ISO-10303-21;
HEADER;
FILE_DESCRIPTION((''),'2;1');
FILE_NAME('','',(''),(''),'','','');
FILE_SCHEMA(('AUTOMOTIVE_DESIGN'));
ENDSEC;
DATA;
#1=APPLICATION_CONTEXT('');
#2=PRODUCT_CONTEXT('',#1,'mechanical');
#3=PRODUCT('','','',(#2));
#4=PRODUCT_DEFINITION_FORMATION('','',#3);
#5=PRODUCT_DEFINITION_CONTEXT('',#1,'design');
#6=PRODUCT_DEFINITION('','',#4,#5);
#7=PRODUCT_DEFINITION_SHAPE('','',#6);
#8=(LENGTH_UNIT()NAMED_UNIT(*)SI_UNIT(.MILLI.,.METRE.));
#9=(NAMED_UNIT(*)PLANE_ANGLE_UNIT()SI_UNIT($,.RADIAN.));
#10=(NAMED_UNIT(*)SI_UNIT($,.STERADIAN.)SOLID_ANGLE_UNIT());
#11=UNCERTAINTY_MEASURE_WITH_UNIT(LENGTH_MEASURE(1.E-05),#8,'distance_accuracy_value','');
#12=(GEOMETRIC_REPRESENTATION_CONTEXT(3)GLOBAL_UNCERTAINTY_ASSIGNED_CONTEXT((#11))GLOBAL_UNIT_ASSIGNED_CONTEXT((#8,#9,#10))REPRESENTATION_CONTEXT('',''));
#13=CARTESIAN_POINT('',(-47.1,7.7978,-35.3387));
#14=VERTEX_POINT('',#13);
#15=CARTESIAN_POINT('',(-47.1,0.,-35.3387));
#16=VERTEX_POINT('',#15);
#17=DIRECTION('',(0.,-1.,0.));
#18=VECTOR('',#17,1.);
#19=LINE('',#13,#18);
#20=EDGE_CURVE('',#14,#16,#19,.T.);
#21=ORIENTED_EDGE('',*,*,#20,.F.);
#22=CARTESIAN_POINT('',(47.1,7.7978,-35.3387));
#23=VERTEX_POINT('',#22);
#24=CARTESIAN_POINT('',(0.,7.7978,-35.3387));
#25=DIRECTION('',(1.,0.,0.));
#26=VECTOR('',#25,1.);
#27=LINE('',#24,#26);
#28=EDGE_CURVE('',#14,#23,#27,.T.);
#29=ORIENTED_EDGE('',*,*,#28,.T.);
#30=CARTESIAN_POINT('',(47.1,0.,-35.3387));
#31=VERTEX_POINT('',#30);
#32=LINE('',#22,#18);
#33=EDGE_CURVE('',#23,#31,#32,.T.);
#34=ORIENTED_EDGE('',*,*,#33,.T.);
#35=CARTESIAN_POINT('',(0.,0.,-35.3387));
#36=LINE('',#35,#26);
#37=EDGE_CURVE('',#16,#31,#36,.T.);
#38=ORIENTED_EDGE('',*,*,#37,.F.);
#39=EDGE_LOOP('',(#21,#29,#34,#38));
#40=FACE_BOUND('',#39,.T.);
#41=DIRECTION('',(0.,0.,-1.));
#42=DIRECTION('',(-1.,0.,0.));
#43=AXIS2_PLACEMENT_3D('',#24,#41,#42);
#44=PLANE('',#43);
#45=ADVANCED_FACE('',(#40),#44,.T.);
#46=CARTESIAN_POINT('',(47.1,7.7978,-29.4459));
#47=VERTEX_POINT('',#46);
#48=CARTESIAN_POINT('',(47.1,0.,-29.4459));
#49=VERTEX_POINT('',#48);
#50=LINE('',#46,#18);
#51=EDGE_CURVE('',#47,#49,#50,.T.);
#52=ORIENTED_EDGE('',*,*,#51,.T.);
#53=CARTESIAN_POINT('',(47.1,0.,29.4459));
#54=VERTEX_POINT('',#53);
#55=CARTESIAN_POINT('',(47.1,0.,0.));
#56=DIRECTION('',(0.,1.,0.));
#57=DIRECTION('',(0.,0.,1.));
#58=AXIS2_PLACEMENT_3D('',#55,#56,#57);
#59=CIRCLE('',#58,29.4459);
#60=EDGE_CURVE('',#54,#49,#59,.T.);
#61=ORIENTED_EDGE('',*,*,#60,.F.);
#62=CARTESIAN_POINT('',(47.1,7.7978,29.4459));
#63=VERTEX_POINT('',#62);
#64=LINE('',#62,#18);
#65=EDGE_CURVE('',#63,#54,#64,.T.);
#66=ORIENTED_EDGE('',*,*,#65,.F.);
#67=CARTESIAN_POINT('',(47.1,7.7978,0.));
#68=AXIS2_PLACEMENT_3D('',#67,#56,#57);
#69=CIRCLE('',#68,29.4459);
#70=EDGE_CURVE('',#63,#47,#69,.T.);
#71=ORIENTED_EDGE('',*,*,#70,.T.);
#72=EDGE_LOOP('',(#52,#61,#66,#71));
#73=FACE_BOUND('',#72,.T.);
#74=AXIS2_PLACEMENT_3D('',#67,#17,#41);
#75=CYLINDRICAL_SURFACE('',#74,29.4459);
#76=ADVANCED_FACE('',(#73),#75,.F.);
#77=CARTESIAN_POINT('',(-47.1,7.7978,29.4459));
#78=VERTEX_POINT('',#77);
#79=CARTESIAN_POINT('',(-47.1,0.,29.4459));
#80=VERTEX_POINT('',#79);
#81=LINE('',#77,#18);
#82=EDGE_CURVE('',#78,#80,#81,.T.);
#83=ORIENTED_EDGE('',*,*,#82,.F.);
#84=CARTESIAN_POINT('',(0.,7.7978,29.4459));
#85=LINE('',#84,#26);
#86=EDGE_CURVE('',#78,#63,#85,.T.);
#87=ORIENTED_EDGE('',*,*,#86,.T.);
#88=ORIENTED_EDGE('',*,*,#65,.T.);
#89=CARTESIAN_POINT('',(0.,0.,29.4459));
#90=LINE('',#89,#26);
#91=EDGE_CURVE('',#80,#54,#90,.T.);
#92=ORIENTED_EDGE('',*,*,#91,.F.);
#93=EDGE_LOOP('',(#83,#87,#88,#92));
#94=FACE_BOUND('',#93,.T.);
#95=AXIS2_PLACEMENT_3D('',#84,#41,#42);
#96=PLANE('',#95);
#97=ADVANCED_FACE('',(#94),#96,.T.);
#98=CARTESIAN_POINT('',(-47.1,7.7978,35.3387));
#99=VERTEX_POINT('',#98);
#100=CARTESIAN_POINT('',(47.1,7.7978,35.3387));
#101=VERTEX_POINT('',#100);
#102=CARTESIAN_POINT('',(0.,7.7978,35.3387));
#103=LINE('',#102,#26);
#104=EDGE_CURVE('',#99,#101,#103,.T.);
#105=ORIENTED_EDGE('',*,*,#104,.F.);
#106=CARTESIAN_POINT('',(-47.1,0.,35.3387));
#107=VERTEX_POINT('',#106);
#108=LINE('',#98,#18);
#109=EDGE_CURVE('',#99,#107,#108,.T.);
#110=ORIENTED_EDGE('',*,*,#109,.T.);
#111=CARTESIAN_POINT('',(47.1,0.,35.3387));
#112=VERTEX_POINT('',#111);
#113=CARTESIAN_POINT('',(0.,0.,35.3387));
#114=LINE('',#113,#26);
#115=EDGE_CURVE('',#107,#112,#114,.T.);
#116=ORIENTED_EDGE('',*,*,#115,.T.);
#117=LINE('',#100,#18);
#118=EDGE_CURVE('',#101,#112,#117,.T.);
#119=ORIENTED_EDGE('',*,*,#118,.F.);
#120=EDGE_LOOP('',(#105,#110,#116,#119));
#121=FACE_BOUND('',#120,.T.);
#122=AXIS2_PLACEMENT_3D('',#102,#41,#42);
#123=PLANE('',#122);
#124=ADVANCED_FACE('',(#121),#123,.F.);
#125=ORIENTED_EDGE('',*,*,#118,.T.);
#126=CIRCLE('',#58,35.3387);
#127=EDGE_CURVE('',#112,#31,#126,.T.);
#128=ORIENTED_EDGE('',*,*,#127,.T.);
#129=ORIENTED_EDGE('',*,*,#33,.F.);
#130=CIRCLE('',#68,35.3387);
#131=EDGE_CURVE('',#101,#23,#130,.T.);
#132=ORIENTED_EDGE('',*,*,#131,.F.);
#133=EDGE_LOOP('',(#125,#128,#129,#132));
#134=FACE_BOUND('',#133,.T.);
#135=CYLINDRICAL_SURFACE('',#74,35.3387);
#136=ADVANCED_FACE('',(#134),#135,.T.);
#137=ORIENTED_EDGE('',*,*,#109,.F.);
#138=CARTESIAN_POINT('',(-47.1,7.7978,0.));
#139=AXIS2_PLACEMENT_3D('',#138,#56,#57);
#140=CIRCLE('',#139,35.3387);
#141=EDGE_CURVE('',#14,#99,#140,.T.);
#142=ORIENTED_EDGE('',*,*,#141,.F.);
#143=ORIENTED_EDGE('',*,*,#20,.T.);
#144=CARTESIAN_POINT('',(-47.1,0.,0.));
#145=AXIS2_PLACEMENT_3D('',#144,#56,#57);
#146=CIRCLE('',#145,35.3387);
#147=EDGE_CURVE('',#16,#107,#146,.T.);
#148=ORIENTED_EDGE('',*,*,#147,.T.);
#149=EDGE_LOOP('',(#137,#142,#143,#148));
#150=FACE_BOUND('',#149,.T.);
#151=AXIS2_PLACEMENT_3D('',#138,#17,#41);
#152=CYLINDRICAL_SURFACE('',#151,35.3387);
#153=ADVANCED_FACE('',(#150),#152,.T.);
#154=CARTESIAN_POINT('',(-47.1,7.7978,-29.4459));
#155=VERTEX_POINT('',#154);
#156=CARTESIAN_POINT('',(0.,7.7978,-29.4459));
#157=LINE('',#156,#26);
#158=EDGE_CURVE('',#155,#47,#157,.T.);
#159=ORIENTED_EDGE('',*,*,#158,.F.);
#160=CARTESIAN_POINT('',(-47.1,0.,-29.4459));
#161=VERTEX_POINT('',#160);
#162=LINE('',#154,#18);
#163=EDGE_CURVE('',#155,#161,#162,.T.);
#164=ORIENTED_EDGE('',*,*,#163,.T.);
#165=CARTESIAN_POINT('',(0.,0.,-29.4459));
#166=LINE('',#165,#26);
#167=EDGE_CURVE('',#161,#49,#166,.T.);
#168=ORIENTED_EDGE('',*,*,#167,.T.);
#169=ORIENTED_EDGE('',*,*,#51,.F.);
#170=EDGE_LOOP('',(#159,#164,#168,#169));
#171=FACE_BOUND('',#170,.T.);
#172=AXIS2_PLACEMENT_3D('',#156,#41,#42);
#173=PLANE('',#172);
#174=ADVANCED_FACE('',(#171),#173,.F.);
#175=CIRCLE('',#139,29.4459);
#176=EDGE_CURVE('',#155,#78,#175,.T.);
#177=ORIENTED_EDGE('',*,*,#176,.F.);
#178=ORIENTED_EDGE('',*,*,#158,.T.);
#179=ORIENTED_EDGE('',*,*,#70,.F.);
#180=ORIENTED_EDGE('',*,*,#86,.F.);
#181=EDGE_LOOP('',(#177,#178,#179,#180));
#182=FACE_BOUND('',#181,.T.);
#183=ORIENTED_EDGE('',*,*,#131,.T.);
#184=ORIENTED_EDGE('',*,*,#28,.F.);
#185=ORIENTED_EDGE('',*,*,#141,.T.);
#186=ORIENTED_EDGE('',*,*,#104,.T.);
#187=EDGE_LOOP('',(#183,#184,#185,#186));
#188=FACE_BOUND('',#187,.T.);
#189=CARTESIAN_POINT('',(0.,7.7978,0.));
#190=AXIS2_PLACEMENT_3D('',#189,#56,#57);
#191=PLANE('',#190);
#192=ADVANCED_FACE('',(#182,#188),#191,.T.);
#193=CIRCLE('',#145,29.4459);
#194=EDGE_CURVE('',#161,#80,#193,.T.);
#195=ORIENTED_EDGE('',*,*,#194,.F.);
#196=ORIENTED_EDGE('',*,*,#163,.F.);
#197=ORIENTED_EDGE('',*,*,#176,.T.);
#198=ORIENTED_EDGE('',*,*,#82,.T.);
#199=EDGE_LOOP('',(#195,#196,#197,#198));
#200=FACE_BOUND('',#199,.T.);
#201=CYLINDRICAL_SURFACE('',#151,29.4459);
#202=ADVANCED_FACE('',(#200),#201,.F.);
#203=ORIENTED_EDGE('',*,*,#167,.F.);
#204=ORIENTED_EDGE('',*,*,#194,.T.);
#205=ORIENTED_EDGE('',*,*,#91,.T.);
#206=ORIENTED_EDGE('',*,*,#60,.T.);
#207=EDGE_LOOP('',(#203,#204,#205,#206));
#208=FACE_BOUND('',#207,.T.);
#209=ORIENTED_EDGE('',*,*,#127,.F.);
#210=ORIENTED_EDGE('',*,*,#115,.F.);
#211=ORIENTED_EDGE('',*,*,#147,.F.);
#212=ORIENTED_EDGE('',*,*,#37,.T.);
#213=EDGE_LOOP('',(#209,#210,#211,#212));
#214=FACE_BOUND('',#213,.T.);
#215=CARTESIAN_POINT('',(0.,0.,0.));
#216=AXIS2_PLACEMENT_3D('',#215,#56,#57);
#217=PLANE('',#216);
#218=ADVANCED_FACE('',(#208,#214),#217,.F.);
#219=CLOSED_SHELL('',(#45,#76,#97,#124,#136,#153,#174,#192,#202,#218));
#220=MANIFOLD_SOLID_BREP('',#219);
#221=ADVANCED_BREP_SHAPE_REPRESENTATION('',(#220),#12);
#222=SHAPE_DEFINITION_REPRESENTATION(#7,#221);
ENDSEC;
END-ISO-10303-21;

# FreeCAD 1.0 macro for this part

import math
import FreeCAD as App
import Part
import Sketcher

V = App.Vector
Q = App.Units.Quantity

doc = App.newDocument("Part")
params = doc.addObject("Spreadsheet::Sheet", "Params")
for row, (alias, value) in enumerate([
    ("sketch1_width", "94.2 mm"),
    ("pad1_length", "7.7978 mm"),
], start=1):
    params.set(f"A{row}", alias)
    params.set(f"B{row}", "=" + value)
    params.setAlias(f"B{row}", alias)

body = doc.addObject("PartDesign::Body", "Body")

sketch1 = doc.addObject("Sketcher::SketchObject", "Sketch")
body.addObject(sketch1)
sketch1.AttachmentSupport = (doc.XZ_Plane, [""])
sketch1.MapMode = "FlatFace"
sketch1.addGeometry(Part.LineSegment(V(-47, 35, 0), V(47, 35, 0)), False)
sketch1.addGeometry(Part.ArcOfCircle(Part.Circle(V(47, 0, 0), V(0, 0, 1), 35), math.radians(-90), math.radians(90)), False)
sketch1.addGeometry(Part.LineSegment(V(47, -35, 0), V(-47, -35, 0)), False)
sketch1.addGeometry(Part.ArcOfCircle(Part.Circle(V(-47, 0, 0), V(0, 0, 1), 35), math.radians(90), math.radians(270)), False)
sketch1.addGeometry(Part.LineSegment(V(47, 29, 0), V(-47, 29, 0)), False)
sketch1.addGeometry(Part.ArcOfCircle(Part.Circle(V(-47, 0, 0), V(0, 0, 1), 29), math.radians(90), math.radians(270)), False)
sketch1.addGeometry(Part.LineSegment(V(-47, -29, 0), V(47, -29, 0)), False)
sketch1.addGeometry(Part.ArcOfCircle(Part.Circle(V(47, 0, 0), V(0, 0, 1), 29), math.radians(-90), math.radians(90)), False)
sketch1.addConstraint(Sketcher.Constraint("Tangent", 0, 2, 1, 2))
sketch1.addConstraint(Sketcher.Constraint("Tangent", 1, 1, 2, 1))
sketch1.addConstraint(Sketcher.Constraint("Tangent", 2, 2, 3, 2))
sketch1.addConstraint(Sketcher.Constraint("Tangent", 3, 1, 0, 1))
sketch1.addConstraint(Sketcher.Constraint("Tangent", 4, 2, 5, 1))
sketch1.addConstraint(Sketcher.Constraint("Tangent", 5, 2, 6, 1))
sketch1.addConstraint(Sketcher.Constraint("Tangent", 6, 2, 7, 1))
sketch1.addConstraint(Sketcher.Constraint("Tangent", 7, 2, 4, 1))
sketch1.addConstraint(Sketcher.Constraint("Horizontal", 0))
sketch1.addConstraint(Sketcher.Constraint("Horizontal", 2))
sketch1.addConstraint(Sketcher.Constraint("Horizontal", 4))
sketch1.addConstraint(Sketcher.Constraint("Horizontal", 6))
sketch1.addConstraint(Sketcher.Constraint("Coincident", 5, 3, 3, 3))
sketch1.addConstraint(Sketcher.Constraint("Symmetric", 1, 3, 3, 3, -1, 1))
sketch1.addConstraint(Sketcher.Constraint("Vertical", 7, 3, 0, 2))
sketch1.addConstraint(Sketcher.Constraint("DistanceX", 0, 1, 0, 2, Q("94.2 mm")))
sketch1.addConstraint(Sketcher.Constraint("Radius", 1, Q("35.3387 mm")))
sketch1.addConstraint(Sketcher.Constraint("Radius", 5, Q("29.4459 mm")))
sketch1.setExpression("Constraints[15]", "Params.sketch1_width")
pad1 = doc.addObject("PartDesign::Pad", "Pad")
body.addObject(pad1)
pad1.Profile = sketch1
pad1.setExpression("Length", "Params.pad1_length")
pad1.Reversed = True

doc.recompute()
